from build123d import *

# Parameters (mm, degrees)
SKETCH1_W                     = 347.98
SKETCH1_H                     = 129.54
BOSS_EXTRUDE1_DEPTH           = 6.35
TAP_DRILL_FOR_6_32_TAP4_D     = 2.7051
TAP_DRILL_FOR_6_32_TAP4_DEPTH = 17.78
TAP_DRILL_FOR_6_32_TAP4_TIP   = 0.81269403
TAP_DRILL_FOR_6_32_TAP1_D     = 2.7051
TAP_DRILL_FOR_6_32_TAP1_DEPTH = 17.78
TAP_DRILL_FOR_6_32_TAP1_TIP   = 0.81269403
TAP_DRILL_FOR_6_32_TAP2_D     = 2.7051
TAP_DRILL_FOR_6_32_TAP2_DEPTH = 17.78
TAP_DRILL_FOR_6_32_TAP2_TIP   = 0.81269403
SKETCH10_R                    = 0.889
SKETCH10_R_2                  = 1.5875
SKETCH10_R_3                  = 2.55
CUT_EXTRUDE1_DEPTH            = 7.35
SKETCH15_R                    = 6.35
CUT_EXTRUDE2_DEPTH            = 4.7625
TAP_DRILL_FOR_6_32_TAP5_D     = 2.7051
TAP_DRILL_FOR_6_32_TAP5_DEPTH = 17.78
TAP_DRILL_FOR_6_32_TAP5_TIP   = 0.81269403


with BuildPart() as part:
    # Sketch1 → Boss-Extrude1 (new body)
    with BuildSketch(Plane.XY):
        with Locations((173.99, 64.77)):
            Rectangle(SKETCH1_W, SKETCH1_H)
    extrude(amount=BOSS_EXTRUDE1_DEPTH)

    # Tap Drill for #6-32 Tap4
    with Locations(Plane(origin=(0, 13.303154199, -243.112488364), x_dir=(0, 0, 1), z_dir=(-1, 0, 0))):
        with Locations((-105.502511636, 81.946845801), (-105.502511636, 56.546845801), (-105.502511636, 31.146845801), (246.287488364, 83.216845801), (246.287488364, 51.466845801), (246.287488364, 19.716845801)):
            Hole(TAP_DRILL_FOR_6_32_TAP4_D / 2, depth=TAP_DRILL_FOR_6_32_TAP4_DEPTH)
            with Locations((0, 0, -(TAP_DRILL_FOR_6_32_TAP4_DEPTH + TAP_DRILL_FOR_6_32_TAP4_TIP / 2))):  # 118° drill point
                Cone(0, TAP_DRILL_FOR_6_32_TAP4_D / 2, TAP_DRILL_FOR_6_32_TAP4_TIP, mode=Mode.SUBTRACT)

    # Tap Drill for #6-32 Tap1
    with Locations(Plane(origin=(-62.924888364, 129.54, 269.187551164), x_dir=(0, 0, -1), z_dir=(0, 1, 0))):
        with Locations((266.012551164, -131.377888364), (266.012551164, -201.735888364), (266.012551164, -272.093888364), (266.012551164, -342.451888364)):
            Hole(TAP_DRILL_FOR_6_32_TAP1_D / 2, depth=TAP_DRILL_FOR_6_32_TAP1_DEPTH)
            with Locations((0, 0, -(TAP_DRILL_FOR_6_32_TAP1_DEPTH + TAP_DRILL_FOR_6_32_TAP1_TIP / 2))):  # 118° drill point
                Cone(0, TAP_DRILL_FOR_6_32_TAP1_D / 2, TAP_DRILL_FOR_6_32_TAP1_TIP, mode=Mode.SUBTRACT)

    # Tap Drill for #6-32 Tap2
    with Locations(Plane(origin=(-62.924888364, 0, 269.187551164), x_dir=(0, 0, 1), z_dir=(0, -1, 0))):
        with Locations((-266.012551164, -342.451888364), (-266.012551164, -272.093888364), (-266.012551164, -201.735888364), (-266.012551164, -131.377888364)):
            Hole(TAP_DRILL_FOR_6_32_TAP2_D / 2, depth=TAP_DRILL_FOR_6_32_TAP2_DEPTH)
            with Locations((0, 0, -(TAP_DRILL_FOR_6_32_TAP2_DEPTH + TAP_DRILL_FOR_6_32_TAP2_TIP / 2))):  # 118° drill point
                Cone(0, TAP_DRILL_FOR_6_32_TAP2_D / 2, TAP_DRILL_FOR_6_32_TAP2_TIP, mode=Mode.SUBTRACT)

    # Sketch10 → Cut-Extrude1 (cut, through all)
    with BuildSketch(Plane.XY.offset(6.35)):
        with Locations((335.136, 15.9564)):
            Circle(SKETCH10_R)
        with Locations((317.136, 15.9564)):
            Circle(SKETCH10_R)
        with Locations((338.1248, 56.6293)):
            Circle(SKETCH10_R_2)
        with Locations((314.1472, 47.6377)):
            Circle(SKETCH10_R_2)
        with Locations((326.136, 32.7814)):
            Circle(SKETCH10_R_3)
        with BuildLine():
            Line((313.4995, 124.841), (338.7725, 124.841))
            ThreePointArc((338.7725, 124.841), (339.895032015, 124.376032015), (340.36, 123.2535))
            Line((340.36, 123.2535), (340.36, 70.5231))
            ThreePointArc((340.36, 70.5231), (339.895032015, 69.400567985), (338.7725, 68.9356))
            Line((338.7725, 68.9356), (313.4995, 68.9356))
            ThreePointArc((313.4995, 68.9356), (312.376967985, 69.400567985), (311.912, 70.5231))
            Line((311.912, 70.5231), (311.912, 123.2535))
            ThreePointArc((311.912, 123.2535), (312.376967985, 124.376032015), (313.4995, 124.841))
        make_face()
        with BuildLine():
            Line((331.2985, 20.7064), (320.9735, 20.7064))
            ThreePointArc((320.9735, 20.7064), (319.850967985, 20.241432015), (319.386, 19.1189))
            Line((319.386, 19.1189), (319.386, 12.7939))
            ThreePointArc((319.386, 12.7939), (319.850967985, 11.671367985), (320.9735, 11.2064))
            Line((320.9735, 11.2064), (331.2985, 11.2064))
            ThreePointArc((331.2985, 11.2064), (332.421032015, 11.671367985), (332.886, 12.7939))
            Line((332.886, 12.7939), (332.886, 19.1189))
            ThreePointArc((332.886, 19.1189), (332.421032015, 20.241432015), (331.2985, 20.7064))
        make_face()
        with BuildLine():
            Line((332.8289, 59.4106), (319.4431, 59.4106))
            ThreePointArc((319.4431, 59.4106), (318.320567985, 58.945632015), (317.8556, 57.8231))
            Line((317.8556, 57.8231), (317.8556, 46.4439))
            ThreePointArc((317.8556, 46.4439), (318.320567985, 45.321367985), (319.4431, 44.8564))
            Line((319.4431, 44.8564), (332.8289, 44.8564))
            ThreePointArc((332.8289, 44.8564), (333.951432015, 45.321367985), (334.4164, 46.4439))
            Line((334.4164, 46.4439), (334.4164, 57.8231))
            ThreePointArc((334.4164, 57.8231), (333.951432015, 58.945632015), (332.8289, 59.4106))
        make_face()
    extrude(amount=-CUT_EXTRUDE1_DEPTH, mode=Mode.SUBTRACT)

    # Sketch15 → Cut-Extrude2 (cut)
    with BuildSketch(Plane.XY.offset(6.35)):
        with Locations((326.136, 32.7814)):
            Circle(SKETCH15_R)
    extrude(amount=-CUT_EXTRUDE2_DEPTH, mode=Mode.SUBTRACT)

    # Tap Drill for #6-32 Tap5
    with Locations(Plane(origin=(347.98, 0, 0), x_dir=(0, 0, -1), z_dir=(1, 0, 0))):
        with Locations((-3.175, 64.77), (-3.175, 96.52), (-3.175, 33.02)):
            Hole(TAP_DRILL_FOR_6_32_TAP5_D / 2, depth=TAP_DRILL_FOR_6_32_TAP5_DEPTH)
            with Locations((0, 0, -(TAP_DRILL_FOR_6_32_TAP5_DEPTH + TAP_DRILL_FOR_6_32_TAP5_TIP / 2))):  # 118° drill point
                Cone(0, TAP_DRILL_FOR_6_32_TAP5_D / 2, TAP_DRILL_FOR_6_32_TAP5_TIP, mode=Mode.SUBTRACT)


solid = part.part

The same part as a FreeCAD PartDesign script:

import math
import FreeCAD as App
import Part
import Sketcher
from FreeCAD import Vector
Q = App.Units.Quantity


def add_polygon(sketch, points):
    """Adds a closed chain of lines whose ends are joined by coincident constraints."""
    first, n = sketch.GeometryCount, len(points)
    for a, b in zip(points, points[1:] + points[:1]):
        sketch.addGeometry(Part.LineSegment(App.Vector(*a, 0), App.Vector(*b, 0)), False)
    for i in range(n):
        sketch.addConstraint(Sketcher.Constraint("Coincident", first + i, 2, first + (i + 1) % n, 1))

doc = App.newDocument("Part")
body = doc.addObject("PartDesign::Body", "Body")

# Sketch on XY plane
sketch1 = doc.addObject("Sketcher::SketchObject", "Sketch")
body.addObject(sketch1)
sketch1.AttachmentSupport = (doc.XY_Plane, [""])
sketch1.MapMode = "FlatFace"
add_polygon(sketch1, [(0, 129.54), (0, 0), (347.98, 0), (347.98, 129.54)])  # lines 0-3
sketch1.addConstraint([
    Sketcher.Constraint("Vertical", 0),
    Sketcher.Constraint("Horizontal", 1),
    Sketcher.Constraint("Vertical", 2),
    Sketcher.Constraint("Horizontal", 3),
    Sketcher.Constraint("Coincident", 0, 2, -1, 1),
    Sketcher.Constraint("DistanceX", 1, 1, 1, 2, Q("13.7 in")),
    Sketcher.Constraint("DistanceY", 0, 2, 0, 1, Q("5.1 in")),
])
pad1 = doc.addObject("PartDesign::Pad", "Pad")
body.addObject(pad1)
pad1.Profile = sketch1
pad1.Length = Q("0.25 in")

# Sketch on YZ plane
sketch2 = doc.addObject("Sketcher::SketchObject", "Sketch001")
body.addObject(sketch2)
sketch2.AttachmentSupport = (doc.YZ_Plane, [""])
sketch2.MapMode = "FlatFace"
sketch2.addGeometry([
    Part.Circle(Vector(95.25, -348.615, 0), Vector(0, 0, 1), 1.35255),  # 0
    Part.Circle(Vector(69.85, -348.615, 0), Vector(0, 0, 1), 1.35255),  # 1
    Part.Circle(Vector(44.45, -348.615, 0), Vector(0, 0, 1), 1.35255),  # 2
    Part.Circle(Vector(96.52, 3.175, 0), Vector(0, 0, 1), 1.35255),  # 3
    Part.Circle(Vector(64.77, 3.175, 0), Vector(0, 0, 1), 1.35255),  # 4
    Part.Circle(Vector(33.02, 3.175, 0), Vector(0, 0, 1), 1.35255),  # 5
], False)
sketch2.addConstraint([
    Sketcher.Constraint("Equal", 0, 1),
    Sketcher.Constraint("Equal", 1, 2),
    Sketcher.Constraint("Equal", 2, 3),
    Sketcher.Constraint("Equal", 3, 4),
    Sketcher.Constraint("Equal", 4, 5),
    Sketcher.Constraint("Horizontal", 0, 3, 1, 3),
    Sketcher.Constraint("Horizontal", 1, 3, 2, 3),
    Sketcher.Constraint("Horizontal", 3, 3, 4, 3),
    Sketcher.Constraint("Horizontal", 4, 3, 5, 3),
    Sketcher.Constraint("DistanceX", 1, 3, 0, 3, Q("1 in")),
    Sketcher.Constraint("DistanceX", 2, 3, 1, 3, Q("1 in")),
    Sketcher.Constraint("Diameter", 0, Q("0.1065 in")),
    Sketcher.Constraint("DistanceX", -1, 1, 3, 3, Q("3.8 in")),
    Sketcher.Constraint("DistanceX", -1, 1, 5, 3, Q("1.3 in")),
    Sketcher.Constraint("DistanceX", 4, 3, 1, 3, Q("0.2 in")),
    Sketcher.Constraint("DistanceX", -1, 1, 0, 3, Q("3.75 in")),
    Sketcher.Constraint("DistanceY", 0, 3, 3, 3, Q("13.85 in")),
    Sketcher.Constraint("DistanceY", 0, 3, -1, 1, Q("13.725 in")),
])
doc.recompute()
hole = doc.addObject("PartDesign::Hole", "Hole")
body.addObject(hole)
hole.Profile = sketch2
hole.ThreadType = "None"
hole.Diameter = Q("0.1065 in")
hole.DepthType = "Dimension"
hole.Depth = Q("0.7 in")
hole.DrillPoint = "Angled"
hole.DrillPointAngle = 118
hole.Reversed = True

# Sketch on XZ plane
sketch3 = doc.addObject("Sketcher::SketchObject", "Sketch002")
body.addObject(sketch3)
sketch3.AttachmentSupport = (doc.XZ_Plane, [""])
sketch3.MapMode = "FlatFace"
sketch3.AttachmentOffset = App.Placement(Vector(0, 0, -5.1 * 25.4), App.Rotation())
sketch3.addGeometry([
    Part.Circle(Vector(68.453, 3.175, 0), Vector(0, 0, 1), 1.35255),
    Part.Circle(Vector(138.811, 3.175, 0), Vector(0, 0, 1), 1.35255),
    Part.Circle(Vector(209.169, 3.175, 0), Vector(0, 0, 1), 1.35255),
    Part.Circle(Vector(279.527, 3.175, 0), Vector(0, 0, 1), 1.35255),
], False)
sketch3.addConstraint([
    Sketcher.Constraint("Equal", 0, 1),
    Sketcher.Constraint("Equal", 1, 2),
    Sketcher.Constraint("Equal", 2, 3),
    Sketcher.Constraint("Horizontal", 0, 3, 1, 3),
    Sketcher.Constraint("Horizontal", 1, 3, 2, 3),
    Sketcher.Constraint("Horizontal", 2, 3, 3, 3),
    Sketcher.Constraint("Diameter", 0, Q("0.1065 in")),
    Sketcher.Constraint("DistanceX", 0, 3, 1, 3, Q("2.77 in")),
    Sketcher.Constraint("DistanceX", 1, 3, 2, 3, Q("2.77 in")),
    Sketcher.Constraint("DistanceX", 2, 3, 3, 3, Q("2.77 in")),
    Sketcher.Constraint("DistanceX", -1, 1, 0, 3, Q("2.695 in")),
    Sketcher.Constraint("DistanceY", -1, 1, 0, 3, Q("0.125 in")),
])
doc.recompute()
hole2 = doc.addObject("PartDesign::Hole", "Hole001")
body.addObject(hole2)
hole2.Profile = sketch3
hole2.ThreadType = "None"
hole2.Diameter = Q("0.1065 in")
hole2.DepthType = "Dimension"
hole2.Depth = Q("0.7 in")
hole2.DrillPoint = "Angled"
hole2.DrillPointAngle = 118
hole2.Reversed = True

# Sketch on XZ plane
sketch4 = doc.addObject("Sketcher::SketchObject", "Sketch003")
body.addObject(sketch4)
sketch4.AttachmentSupport = (doc.XZ_Plane, [""])
sketch4.MapMode = "FlatFace"
sketch4.addGeometry([
    Part.Circle(Vector(279.527, 3.175, 0), Vector(0, 0, 1), 1.35255),
    Part.Circle(Vector(209.169, 3.175, 0), Vector(0, 0, 1), 1.35255),
    Part.Circle(Vector(138.811, 3.175, 0), Vector(0, 0, 1), 1.35255),
    Part.Circle(Vector(68.453, 3.175, 0), Vector(0, 0, 1), 1.35255),
], False)
sketch4.addConstraint([
    Sketcher.Constraint("Equal", 0, 1),
    Sketcher.Constraint("Equal", 1, 2),
    Sketcher.Constraint("Equal", 2, 3),
    Sketcher.Constraint("Horizontal", 0, 3, 1, 3),
    Sketcher.Constraint("Horizontal", 1, 3, 2, 3),
    Sketcher.Constraint("Horizontal", 2, 3, 3, 3),
    Sketcher.Constraint("Diameter", 0, Q("0.1065 in")),
    Sketcher.Constraint("DistanceX", 1, 3, 0, 3, Q("2.77 in")),
    Sketcher.Constraint("DistanceX", 2, 3, 1, 3, Q("2.77 in")),
    Sketcher.Constraint("DistanceX", 3, 3, 2, 3, Q("2.77 in")),
    Sketcher.Constraint("DistanceX", -1, 1, 0, 3, Q("11.005 in")),
    Sketcher.Constraint("DistanceY", -1, 1, 0, 3, Q("0.125 in")),
])
doc.recompute()
hole3 = doc.addObject("PartDesign::Hole", "Hole002")
body.addObject(hole3)
hole3.Profile = sketch4
hole3.ThreadType = "None"
hole3.Diameter = Q("0.1065 in")
hole3.DepthType = "Dimension"
hole3.Depth = Q("0.7 in")
hole3.DrillPoint = "Angled"
hole3.DrillPointAngle = 118

# Sketch on XY plane
sketch5 = doc.addObject("Sketcher::SketchObject", "Sketch004")
body.addObject(sketch5)
sketch5.AttachmentSupport = (doc.XY_Plane, [""])
sketch5.MapMode = "FlatFace"
sketch5.AttachmentOffset = App.Placement(Vector(0, 0, 0.25 * 25.4), App.Rotation())
sketch5.addGeometry([
    Part.Circle(Vector(335.136, 15.9564, 0), Vector(0, 0, 1), 0.889),  # 0
    Part.Circle(Vector(317.136, 15.9564, 0), Vector(0, 0, 1), 0.889),  # 1
    Part.Circle(Vector(338.1248, 56.6293, 0), Vector(0, 0, 1), 1.5875),  # 2
    Part.Circle(Vector(314.1472, 47.6377, 0), Vector(0, 0, 1), 1.5875),  # 3
    Part.Circle(Vector(326.136, 32.7814, 0), Vector(0, 0, 1), 2.55),  # 4
    Part.LineSegment(Vector(338.7725, 124.841, 0), Vector(313.4995, 124.841, 0)),  # 5
    Part.ArcOfCircle(Part.Circle(Vector(313.4995, 123.2535, 0), Vector(0, 0, 1), 1.5875), math.radians(90), math.radians(180)),  # 6
    Part.LineSegment(Vector(311.912, 123.2535, 0), Vector(311.912, 70.5231, 0)),  # 7
    Part.ArcOfCircle(Part.Circle(Vector(313.4995, 70.5231, 0), Vector(0, 0, 1), 1.5875), math.radians(180), math.radians(270)),  # 8
    Part.LineSegment(Vector(313.4995, 68.9356, 0), Vector(338.7725, 68.9356, 0)),  # 9
    Part.ArcOfCircle(Part.Circle(Vector(338.7725, 70.5231, 0), Vector(0, 0, 1), 1.5875), math.radians(-90), math.radians(0)),  # 10
    Part.LineSegment(Vector(340.36, 70.5231, 0), Vector(340.36, 123.2535, 0)),  # 11
    Part.ArcOfCircle(Part.Circle(Vector(338.7725, 123.2535, 0), Vector(0, 0, 1), 1.5875), math.radians(0), math.radians(90)),  # 12
    Part.LineSegment(Vector(331.2985, 20.7064, 0), Vector(320.9735, 20.7064, 0)),  # 13
    Part.ArcOfCircle(Part.Circle(Vector(320.9735, 19.1189, 0), Vector(0, 0, 1), 1.5875), math.radians(90), math.radians(180)),  # 14
    Part.LineSegment(Vector(319.386, 19.1189, 0), Vector(319.386, 12.7939, 0)),  # 15
    Part.ArcOfCircle(Part.Circle(Vector(320.9735, 12.7939, 0), Vector(0, 0, 1), 1.5875), math.radians(180), math.radians(270)),  # 16
    Part.LineSegment(Vector(320.9735, 11.2064, 0), Vector(331.2985, 11.2064, 0)),  # 17
    Part.ArcOfCircle(Part.Circle(Vector(331.2985, 12.7939, 0), Vector(0, 0, 1), 1.5875), math.radians(-90), math.radians(0)),  # 18
    Part.LineSegment(Vector(332.886, 12.7939, 0), Vector(332.886, 19.1189, 0)),  # 19
    Part.ArcOfCircle(Part.Circle(Vector(331.2985, 19.1189, 0), Vector(0, 0, 1), 1.5875), math.radians(0), math.radians(90)),  # 20
    Part.LineSegment(Vector(332.8289, 59.4106, 0), Vector(319.4431, 59.4106, 0)),  # 21
    Part.ArcOfCircle(Part.Circle(Vector(319.4431, 57.8231, 0), Vector(0, 0, 1), 1.5875), math.radians(90), math.radians(180)),  # 22
    Part.LineSegment(Vector(317.8556, 57.8231, 0), Vector(317.8556, 46.4439, 0)),  # 23
    Part.ArcOfCircle(Part.Circle(Vector(319.4431, 46.4439, 0), Vector(0, 0, 1), 1.5875), math.radians(180), math.radians(270)),  # 24
    Part.LineSegment(Vector(319.4431, 44.8564, 0), Vector(332.8289, 44.8564, 0)),  # 25
    Part.ArcOfCircle(Part.Circle(Vector(332.8289, 46.4439, 0), Vector(0, 0, 1), 1.5875), math.radians(-90), math.radians(0)),  # 26
    Part.LineSegment(Vector(334.4164, 46.4439, 0), Vector(334.4164, 57.8231, 0)),  # 27
    Part.ArcOfCircle(Part.Circle(Vector(332.8289, 57.8231, 0), Vector(0, 0, 1), 1.5875), math.radians(0), math.radians(90)),  # 28
], False)
sketch5.addConstraint([
    Sketcher.Constraint("Tangent", 5, 2, 6, 1),
    Sketcher.Constraint("Tangent", 6, 2, 7, 1),
    Sketcher.Constraint("Tangent", 7, 2, 8, 1),
    Sketcher.Constraint("Tangent", 8, 2, 9, 1),
    Sketcher.Constraint("Tangent", 9, 2, 10, 1),
    Sketcher.Constraint("Tangent", 10, 2, 11, 1),
    Sketcher.Constraint("Tangent", 11, 2, 12, 1),
    Sketcher.Constraint("Tangent", 12, 2, 5, 1),
    Sketcher.Constraint("Tangent", 13, 2, 14, 1),
    Sketcher.Constraint("Tangent", 14, 2, 15, 1),
    Sketcher.Constraint("Tangent", 15, 2, 16, 1),
    Sketcher.Constraint("Tangent", 16, 2, 17, 1),
    Sketcher.Constraint("Tangent", 17, 2, 18, 1),
    Sketcher.Constraint("Tangent", 18, 2, 19, 1),
    Sketcher.Constraint("Tangent", 19, 2, 20, 1),
    Sketcher.Constraint("Tangent", 20, 2, 13, 1),
    Sketcher.Constraint("Tangent", 21, 2, 22, 1),
    Sketcher.Constraint("Tangent", 22, 2, 23, 1),
    Sketcher.Constraint("Tangent", 23, 2, 24, 1),
    Sketcher.Constraint("Tangent", 24, 2, 25, 1),
    Sketcher.Constraint("Tangent", 25, 2, 26, 1),
    Sketcher.Constraint("Tangent", 26, 2, 27, 1),
    Sketcher.Constraint("Tangent", 27, 2, 28, 1),
    Sketcher.Constraint("Tangent", 28, 2, 21, 1),
    Sketcher.Constraint("Horizontal", 5),
    Sketcher.Constraint("Vertical", 7),
    Sketcher.Constraint("Horizontal", 9),
    Sketcher.Constraint("Vertical", 11),
    Sketcher.Constraint("Horizontal", 13),
    Sketcher.Constraint("Vertical", 15),
    Sketcher.Constraint("Horizontal", 17),
    Sketcher.Constraint("Vertical", 19),
    Sketcher.Constraint("Horizontal", 21),
    Sketcher.Constraint("Vertical", 23),
    Sketcher.Constraint("Horizontal", 25),
    Sketcher.Constraint("Vertical", 27),
    Sketcher.Constraint("Equal", 0, 1),
    Sketcher.Constraint("Equal", 2, 3),
    Sketcher.Constraint("Equal", 3, 6),
    Sketcher.Constraint("Equal", 6, 8),
    Sketcher.Constraint("Equal", 8, 10),
    Sketcher.Constraint("Equal", 10, 12),
    Sketcher.Constraint("Equal", 12, 14),
    Sketcher.Constraint("Equal", 14, 16),
    Sketcher.Constraint("Equal", 16, 18),
    Sketcher.Constraint("Equal", 18, 20),
    Sketcher.Constraint("Equal", 20, 22),
    Sketcher.Constraint("Equal", 22, 24),
    Sketcher.Constraint("Equal", 24, 26),
    Sketcher.Constraint("Equal", 26, 28),
    Sketcher.Constraint("Horizontal", 0, 3, 1, 3),
    Sketcher.Constraint("Diameter", 0, Q("0.07 in")),
    Sketcher.Constraint("Diameter", 2, Q("0.125 in")),
    Sketcher.Constraint("DistanceX", -1, 1, 10, 2, Q("13.4 in")),
    Sketcher.Constraint("DistanceY", 22, 3, 8, 3, Q("0.5 in")),
    Sketcher.Constraint("Diameter", 4, 5.1),
    Sketcher.Constraint("DistanceX", 5, 2, 5, 1, Q("0.995 in")),
    Sketcher.Constraint("DistanceX", 21, 2, 21, 1, Q("0.527 in")),
    Sketcher.Constraint("DistanceY", 7, 2, 7, 1, Q("2.076 in")),
    Sketcher.Constraint("DistanceY", 23, 2, 23, 1, Q("0.448 in")),
    Sketcher.Constraint("DistanceX", -1, 1, 4, 3, Q("12.84 in")),
    Sketcher.Constraint("DistanceX", -1, 1, 2, 3, Q("13.312 in")),
    Sketcher.Constraint("DistanceX", -1, 1, 3, 3, Q("12.368 in")),
    Sketcher.Constraint("DistanceY", -1, 1, 5, 2, Q("4.915 in")),
    Sketcher.Constraint("DistanceX", -1, 1, 22, 2, Q("12.514 in")),
    Sketcher.Constraint("DistanceY", 3, 3, 2, 3, Q("0.354 in")),
    Sketcher.Constraint("DistanceY", 2, 3, 6, 3, Q("2.623 in")),
    Sketcher.Constraint("DistanceX", 13, 2, 13, 1, 10.325),
    Sketcher.Constraint("DistanceY", 15, 2, 15, 1, 6.325),
    Sketcher.Constraint("DistanceX", -1, 1, 0, 3, 335.136),
    Sketcher.Constraint("DistanceY", -1, 1, 0, 3, 15.9564),
    Sketcher.Constraint("DistanceX", -1, 1, 1, 3, 317.136),
    Sketcher.Constraint("DistanceY", -1, 1, 4, 3, 32.7814),
    Sketcher.Constraint("DistanceX", -1, 1, 14, 3, 320.9735),
    Sketcher.Constraint("DistanceY", -1, 1, 14, 3, 19.1189),
])
pocket1 = doc.addObject("PartDesign::Pocket", "Pocket")
body.addObject(pocket1)
pocket1.Profile = sketch5
pocket1.Type = "ThroughAll"

# Sketch on XY plane
sketch6 = doc.addObject("Sketcher::SketchObject", "Sketch005")
body.addObject(sketch6)
sketch6.AttachmentSupport = (doc.XY_Plane, [""])
sketch6.MapMode = "FlatFace"
sketch6.AttachmentOffset = App.Placement(Vector(0, 0, 0.25 * 25.4), App.Rotation())
sketch6.addGeometry(Part.Circle(Vector(326.136, 32.7814, 0), Vector(0, 0, 1), 6.35), False)
sketch6.addConstraint([
    Sketcher.Constraint("Diameter", 0, Q("0.5 in")),
    Sketcher.Constraint("DistanceX", -1, 1, 0, 3, Q("12.84 in")),
    Sketcher.Constraint("DistanceY", -1, 1, 0, 3, 32.7814),
])
pocket2 = doc.addObject("PartDesign::Pocket", "Pocket001")
body.addObject(pocket2)
pocket2.Profile = sketch6
pocket2.Length = Q("0.1875 in")

# Sketch on YZ plane
sketch7 = doc.addObject("Sketcher::SketchObject", "Sketch006")
body.addObject(sketch7)
sketch7.AttachmentSupport = (doc.YZ_Plane, [""])
sketch7.MapMode = "FlatFace"
sketch7.AttachmentOffset = App.Placement(Vector(0, 0, 13.7 * 25.4), App.Rotation())
sketch7.addGeometry([
    Part.Circle(Vector(64.77, 3.175, 0), Vector(0, 0, 1), 1.35255),
    Part.Circle(Vector(96.52, 3.175, 0), Vector(0, 0, 1), 1.35255),
    Part.Circle(Vector(33.02, 3.175, 0), Vector(0, 0, 1), 1.35255),
], False)
sketch7.addConstraint([
    Sketcher.Constraint("Equal", 0, 1),
    Sketcher.Constraint("Equal", 1, 2),
    Sketcher.Constraint("Horizontal", 0, 3, 1, 3),
    Sketcher.Constraint("Horizontal", 1, 3, 2, 3),
    Sketcher.Constraint("Diameter", 0, Q("0.1065 in")),
    Sketcher.Constraint("DistanceX", -1, 1, 1, 3, Q("3.8 in")),
    Sketcher.Constraint("DistanceX", -1, 1, 2, 3, Q("1.3 in")),
    Sketcher.Constraint("DistanceX", -1, 1, 0, 3, Q("2.55 in")),
    Sketcher.Constraint("DistanceY", -1, 1, 0, 3, Q("0.125 in")),
])
doc.recompute()
hole4 = doc.addObject("PartDesign::Hole", "Hole003")
body.addObject(hole4)
hole4.Profile = sketch7
hole4.ThreadType = "None"
hole4.Diameter = Q("0.1065 in")
hole4.DepthType = "Dimension"
hole4.Depth = Q("0.7 in")
hole4.DrillPoint = "Angled"
hole4.DrillPointAngle = 118

doc.recompute()
